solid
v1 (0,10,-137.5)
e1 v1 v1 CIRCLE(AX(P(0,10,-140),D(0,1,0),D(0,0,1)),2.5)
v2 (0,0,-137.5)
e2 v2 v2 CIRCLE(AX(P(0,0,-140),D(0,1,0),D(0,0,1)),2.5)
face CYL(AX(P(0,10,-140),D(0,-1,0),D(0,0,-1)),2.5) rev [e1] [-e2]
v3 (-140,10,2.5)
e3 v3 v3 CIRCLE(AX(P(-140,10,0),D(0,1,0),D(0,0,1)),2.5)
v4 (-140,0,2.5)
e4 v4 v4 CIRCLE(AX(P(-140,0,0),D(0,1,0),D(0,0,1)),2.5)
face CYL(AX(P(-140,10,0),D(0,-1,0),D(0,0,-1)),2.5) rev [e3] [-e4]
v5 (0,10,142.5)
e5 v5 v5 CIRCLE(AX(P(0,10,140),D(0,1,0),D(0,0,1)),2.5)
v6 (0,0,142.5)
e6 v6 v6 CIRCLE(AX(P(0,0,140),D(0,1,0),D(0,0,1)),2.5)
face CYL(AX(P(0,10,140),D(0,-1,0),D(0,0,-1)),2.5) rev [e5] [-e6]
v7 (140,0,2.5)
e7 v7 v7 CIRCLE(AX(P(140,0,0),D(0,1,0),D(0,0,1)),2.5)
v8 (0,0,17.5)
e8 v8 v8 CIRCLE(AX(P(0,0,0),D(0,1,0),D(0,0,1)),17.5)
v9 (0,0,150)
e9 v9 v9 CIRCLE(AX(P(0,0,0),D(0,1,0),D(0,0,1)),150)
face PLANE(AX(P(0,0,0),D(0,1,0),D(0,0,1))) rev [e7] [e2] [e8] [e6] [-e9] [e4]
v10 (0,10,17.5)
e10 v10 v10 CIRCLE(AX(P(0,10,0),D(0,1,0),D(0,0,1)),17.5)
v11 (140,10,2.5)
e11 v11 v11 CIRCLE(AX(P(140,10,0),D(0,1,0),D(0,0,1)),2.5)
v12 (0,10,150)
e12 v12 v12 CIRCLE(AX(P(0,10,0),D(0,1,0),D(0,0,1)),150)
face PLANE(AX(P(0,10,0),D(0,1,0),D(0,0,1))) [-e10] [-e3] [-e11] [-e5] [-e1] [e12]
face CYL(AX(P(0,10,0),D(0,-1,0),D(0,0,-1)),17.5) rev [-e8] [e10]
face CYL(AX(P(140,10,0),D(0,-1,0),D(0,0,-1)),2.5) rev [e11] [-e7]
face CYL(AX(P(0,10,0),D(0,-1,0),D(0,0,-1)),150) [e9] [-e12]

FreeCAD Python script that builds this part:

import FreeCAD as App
import Part
import Sketcher
from FreeCAD import Vector
Q = App.Units.Quantity

doc = App.newDocument("Part")
body = doc.addObject("PartDesign::Body", "Body")

sketch1 = body.newObject("Sketcher::SketchObject", "Sketch")
sketch1.AttachmentSupport = (doc.getObject("XZ_Plane"), [""])
sketch1.MapMode = "FlatFace"
sketch1.addGeometry(Part.Circle(Vector(0, 0, 0), Vector(0, 0, 1), 150), False)
sketch1.addGeometry(Part.Circle(Vector(0, 140, 0), Vector(0, 0, 1), 2.5), False)
sketch1.addGeometry(Part.Circle(Vector(-140, 0, 0), Vector(0, 0, 1), 2.5), False)
sketch1.addGeometry(Part.Circle(Vector(0, 0, 0), Vector(0, 0, 1), 17.5), False)
sketch1.addGeometry(Part.Circle(Vector(140, 0, 0), Vector(0, 0, 1), 2.5), False)
sketch1.addGeometry(Part.Circle(Vector(0, -140, 0), Vector(0, 0, 1), 2.5), False)
sketch1.addConstraint(Sketcher.Constraint("Coincident", 0, 3, -1, 1))
sketch1.addConstraint(Sketcher.Constraint("Coincident", 3, 3, -1, 1))
sketch1.addConstraint(Sketcher.Constraint("Equal", 1, 2))
sketch1.addConstraint(Sketcher.Constraint("Equal", 2, 4))
sketch1.addConstraint(Sketcher.Constraint("Equal", 4, 5))
sketch1.addConstraint(Sketcher.Constraint("Symmetric", 2, 3, 4, 3, -1, 1))
sketch1.addConstraint(Sketcher.Constraint("Symmetric", 1, 3, 5, 3, -1, 1))
sketch1.addConstraint(Sketcher.Constraint("PointOnObject", 1, 3, -2))
sketch1.addConstraint(Sketcher.Constraint("PointOnObject", 2, 3, -1))
sketch1.addConstraint(Sketcher.Constraint("Diameter", 0, Q("300 mm")))
sketch1.addConstraint(Sketcher.Constraint("Diameter", 1, Q("5 mm")))
sketch1.addConstraint(Sketcher.Constraint("Diameter", 3, Q("35 mm")))
sketch1.addConstraint(Sketcher.Constraint("DistanceY", -1, 1, 1, 3, Q("140 mm")))
sketch1.addConstraint(Sketcher.Constraint("DistanceX", 2, 3, -1, 1, Q("140 mm")))
pad1 = body.newObject("PartDesign::Pad", "Pad")
pad1.Profile = sketch1
pad1.Length = 10
pad1.Reversed = True

doc.recompute()
